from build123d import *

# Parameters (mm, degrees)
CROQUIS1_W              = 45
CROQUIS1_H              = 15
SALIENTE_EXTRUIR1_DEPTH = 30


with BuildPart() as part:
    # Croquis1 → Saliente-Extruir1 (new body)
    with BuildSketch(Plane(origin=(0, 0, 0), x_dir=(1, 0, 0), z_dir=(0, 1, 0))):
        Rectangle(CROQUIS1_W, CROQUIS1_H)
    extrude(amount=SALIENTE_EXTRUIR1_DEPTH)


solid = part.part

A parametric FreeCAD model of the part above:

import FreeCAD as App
import Part
import Sketcher

V = App.Vector
Q = App.Units.Quantity


def add_polygon(sketch, points):
    """Adds a closed chain of lines whose ends are joined by coincident constraints."""
    first, n = sketch.GeometryCount, len(points)
    for a, b in zip(points, points[1:] + points[:1]):
        sketch.addGeometry(Part.LineSegment(App.Vector(*a, 0), App.Vector(*b, 0)), False)
    for i in range(n):
        sketch.addConstraint(Sketcher.Constraint("Coincident", first + i, 2, first + (i + 1) % n, 1))

doc = App.newDocument("Part")
body = doc.addObject("PartDesign::Body", "Body")

sketch1 = body.newObject("Sketcher::SketchObject", "Sketch")
sketch1.AttachmentSupport = (doc.getObject("XZ_Plane"), [""])
sketch1.MapMode = "FlatFace"
add_polygon(sketch1, [(-22, -8), (-22, 8), (22, 8), (22, -8)])
sketch1.addConstraint([
    Sketcher.Constraint("Vertical", 0),
    Sketcher.Constraint("Horizontal", 1),
    Sketcher.Constraint("Vertical", 2),
    Sketcher.Constraint("Horizontal", 3),
    Sketcher.Constraint("Symmetric", 0, 2, 2, 2, -1, 1),
    Sketcher.Constraint("DistanceX", 1, 1, 1, 2, Q("45 mm")),
    Sketcher.Constraint("DistanceY", 0, 1, 0, 2, Q("15 mm")),
])
pad1 = body.newObject("PartDesign::Pad", "Pad")
pad1.Profile = sketch1
pad1.Length = 30
pad1.Reversed = True

doc.recompute()
